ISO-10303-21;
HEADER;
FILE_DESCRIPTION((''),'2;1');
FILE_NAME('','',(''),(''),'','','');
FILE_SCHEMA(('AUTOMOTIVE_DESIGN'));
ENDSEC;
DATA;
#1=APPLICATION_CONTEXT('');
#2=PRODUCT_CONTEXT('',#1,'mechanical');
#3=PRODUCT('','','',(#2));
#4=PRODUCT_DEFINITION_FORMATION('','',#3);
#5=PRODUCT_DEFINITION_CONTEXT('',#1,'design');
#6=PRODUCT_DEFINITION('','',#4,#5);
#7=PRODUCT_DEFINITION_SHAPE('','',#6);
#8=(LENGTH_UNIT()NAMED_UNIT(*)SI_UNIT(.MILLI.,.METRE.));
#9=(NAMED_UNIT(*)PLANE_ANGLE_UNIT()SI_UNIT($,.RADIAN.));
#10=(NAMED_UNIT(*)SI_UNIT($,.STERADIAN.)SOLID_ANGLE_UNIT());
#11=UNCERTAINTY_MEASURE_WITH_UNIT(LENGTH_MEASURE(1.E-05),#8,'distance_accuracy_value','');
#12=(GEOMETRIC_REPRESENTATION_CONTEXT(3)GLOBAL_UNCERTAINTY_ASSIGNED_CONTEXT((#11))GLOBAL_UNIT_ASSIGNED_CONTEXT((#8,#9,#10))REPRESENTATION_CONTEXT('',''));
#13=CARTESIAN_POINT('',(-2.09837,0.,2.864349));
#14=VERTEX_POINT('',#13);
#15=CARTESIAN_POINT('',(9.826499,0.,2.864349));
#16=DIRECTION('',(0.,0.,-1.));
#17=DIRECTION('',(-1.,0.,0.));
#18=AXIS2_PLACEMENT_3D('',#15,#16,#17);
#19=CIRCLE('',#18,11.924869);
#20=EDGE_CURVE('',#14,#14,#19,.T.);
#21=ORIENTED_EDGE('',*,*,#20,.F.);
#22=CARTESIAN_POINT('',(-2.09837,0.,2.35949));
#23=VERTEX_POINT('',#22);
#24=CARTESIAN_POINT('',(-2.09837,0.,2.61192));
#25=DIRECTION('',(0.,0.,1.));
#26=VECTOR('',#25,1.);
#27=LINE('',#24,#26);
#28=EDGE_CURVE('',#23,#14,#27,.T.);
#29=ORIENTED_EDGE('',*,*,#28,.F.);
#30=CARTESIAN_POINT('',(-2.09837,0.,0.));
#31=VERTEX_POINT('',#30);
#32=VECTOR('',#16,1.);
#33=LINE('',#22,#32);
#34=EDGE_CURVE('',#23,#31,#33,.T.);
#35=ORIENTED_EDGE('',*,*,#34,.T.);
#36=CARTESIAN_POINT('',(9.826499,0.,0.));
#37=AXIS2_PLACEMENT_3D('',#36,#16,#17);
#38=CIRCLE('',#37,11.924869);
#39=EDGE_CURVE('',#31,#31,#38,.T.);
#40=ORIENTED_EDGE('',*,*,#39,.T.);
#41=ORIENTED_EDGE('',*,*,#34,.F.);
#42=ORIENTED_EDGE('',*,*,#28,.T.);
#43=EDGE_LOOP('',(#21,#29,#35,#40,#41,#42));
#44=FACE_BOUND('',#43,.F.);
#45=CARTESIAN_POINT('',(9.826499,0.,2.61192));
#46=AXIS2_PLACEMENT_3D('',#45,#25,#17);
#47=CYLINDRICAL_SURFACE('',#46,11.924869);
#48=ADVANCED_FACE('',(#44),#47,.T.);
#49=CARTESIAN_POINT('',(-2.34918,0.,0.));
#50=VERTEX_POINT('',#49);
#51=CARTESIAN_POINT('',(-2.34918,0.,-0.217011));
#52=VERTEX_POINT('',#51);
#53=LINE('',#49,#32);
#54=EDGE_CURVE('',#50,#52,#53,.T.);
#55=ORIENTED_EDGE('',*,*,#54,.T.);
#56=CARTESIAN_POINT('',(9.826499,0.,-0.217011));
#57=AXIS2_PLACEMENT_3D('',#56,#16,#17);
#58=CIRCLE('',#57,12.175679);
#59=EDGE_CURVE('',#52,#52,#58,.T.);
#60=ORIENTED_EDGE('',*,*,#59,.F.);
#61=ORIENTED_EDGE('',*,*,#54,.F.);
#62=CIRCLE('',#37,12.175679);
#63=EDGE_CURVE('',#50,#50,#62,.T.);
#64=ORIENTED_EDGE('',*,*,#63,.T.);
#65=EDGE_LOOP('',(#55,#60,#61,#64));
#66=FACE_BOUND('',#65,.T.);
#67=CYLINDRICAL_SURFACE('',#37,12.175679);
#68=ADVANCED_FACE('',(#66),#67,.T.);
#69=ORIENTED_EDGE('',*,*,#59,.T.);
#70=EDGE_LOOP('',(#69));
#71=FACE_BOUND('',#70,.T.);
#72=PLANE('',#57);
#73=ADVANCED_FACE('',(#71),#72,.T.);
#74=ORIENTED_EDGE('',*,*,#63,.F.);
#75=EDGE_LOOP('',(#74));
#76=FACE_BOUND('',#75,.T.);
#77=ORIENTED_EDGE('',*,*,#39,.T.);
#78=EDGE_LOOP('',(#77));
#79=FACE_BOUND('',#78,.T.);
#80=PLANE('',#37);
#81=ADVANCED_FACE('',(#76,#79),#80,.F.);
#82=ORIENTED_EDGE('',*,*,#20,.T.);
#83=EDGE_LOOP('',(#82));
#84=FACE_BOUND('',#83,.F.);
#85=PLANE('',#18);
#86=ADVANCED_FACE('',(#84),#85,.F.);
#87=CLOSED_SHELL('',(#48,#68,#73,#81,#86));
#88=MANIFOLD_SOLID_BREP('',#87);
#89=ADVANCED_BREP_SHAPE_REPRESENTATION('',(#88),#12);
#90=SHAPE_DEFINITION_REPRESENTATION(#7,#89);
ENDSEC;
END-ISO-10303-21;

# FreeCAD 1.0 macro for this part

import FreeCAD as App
import Part
import Sketcher
from FreeCAD import Vector
Q = App.Units.Quantity


def add_polygon(sketch, points):
    """Adds a closed chain of lines whose ends are joined by coincident constraints."""
    first, n = sketch.GeometryCount, len(points)
    for a, b in zip(points, points[1:] + points[:1]):
        sketch.addGeometry(Part.LineSegment(App.Vector(*a, 0), App.Vector(*b, 0)), False)
    for i in range(n):
        sketch.addConstraint(Sketcher.Constraint("Coincident", first + i, 2, first + (i + 1) % n, 1))

doc = App.newDocument("Part")
params = doc.addObject("Spreadsheet::Sheet", "Params")
for row, (alias, value) in enumerate([
    ("revolution_angle", "360 deg"),
], start=1):
    params.set(f"A{row}", alias)
    params.set(f"B{row}", "=" + value)
    params.setAlias(f"B{row}", alias)

body = doc.addObject("PartDesign::Body", "Body")

# Sketch on XZ plane
sketch1 = doc.addObject("Sketcher::SketchObject", "Sketch")
body.addObject(sketch1)
sketch1.AttachmentSupport = (doc.XZ_Plane, [""])
sketch1.MapMode = "FlatFace"
add_polygon(sketch1, [(-2.35, -0.22), (9.83, -0.22), (9.83, 2.36), (9.83, 2.86), (-2.1, 2.86), (-2.1, 2.36), (-2.1, 0), (-2.35, 0)])  # lines 0-7
sketch1.addGeometry(Part.LineSegment(Vector(9.83, 2.86, 0), Vector(9.83, -0.22, 0)), True)  # axis
sketch1.addConstraint([
    Sketcher.Constraint("Horizontal", 0),
    Sketcher.Constraint("Vertical", 1),
    Sketcher.Constraint("Vertical", 2),
    Sketcher.Constraint("Horizontal", 3),
    Sketcher.Constraint("Vertical", 4),
    Sketcher.Constraint("Vertical", 5),
    Sketcher.Constraint("Horizontal", 6),
    Sketcher.Constraint("Vertical", 7),
    Sketcher.Constraint("Vertical", 8),
    Sketcher.Constraint("Coincident", 8, 1, 2, 2),
    Sketcher.Constraint("PointOnObject", 5, 2, -1),
    Sketcher.Constraint("Horizontal", 1, 2, 4, 2),
    Sketcher.Constraint("Horizontal", 7, 2, 8, 2),
    Sketcher.Constraint("DistanceY", 1, 1, 1, 2, Q("2.576501 mm")),
    Sketcher.Constraint("DistanceX", 0, 1, 0, 2, Q("12.175679 mm")),
    Sketcher.Constraint("DistanceX", 3, 2, 3, 1, Q("11.924869 mm")),
    Sketcher.Constraint("DistanceY", 2, 1, 2, 2, Q("0.504859 mm")),
    Sketcher.Constraint("DistanceY", 5, 2, 5, 1, Q("2.35949 mm")),
    Sketcher.Constraint("DistanceX", -1, 1, 0, 2, Q("9.826499 mm")),
])
revolution = doc.addObject("PartDesign::Revolution", "Revolution")
body.addObject(revolution)
revolution.Profile = sketch1
revolution.ReferenceAxis = (sketch1, ["Axis0"])
revolution.setExpression("Angle", "Params.revolution_angle")

doc.recompute()
